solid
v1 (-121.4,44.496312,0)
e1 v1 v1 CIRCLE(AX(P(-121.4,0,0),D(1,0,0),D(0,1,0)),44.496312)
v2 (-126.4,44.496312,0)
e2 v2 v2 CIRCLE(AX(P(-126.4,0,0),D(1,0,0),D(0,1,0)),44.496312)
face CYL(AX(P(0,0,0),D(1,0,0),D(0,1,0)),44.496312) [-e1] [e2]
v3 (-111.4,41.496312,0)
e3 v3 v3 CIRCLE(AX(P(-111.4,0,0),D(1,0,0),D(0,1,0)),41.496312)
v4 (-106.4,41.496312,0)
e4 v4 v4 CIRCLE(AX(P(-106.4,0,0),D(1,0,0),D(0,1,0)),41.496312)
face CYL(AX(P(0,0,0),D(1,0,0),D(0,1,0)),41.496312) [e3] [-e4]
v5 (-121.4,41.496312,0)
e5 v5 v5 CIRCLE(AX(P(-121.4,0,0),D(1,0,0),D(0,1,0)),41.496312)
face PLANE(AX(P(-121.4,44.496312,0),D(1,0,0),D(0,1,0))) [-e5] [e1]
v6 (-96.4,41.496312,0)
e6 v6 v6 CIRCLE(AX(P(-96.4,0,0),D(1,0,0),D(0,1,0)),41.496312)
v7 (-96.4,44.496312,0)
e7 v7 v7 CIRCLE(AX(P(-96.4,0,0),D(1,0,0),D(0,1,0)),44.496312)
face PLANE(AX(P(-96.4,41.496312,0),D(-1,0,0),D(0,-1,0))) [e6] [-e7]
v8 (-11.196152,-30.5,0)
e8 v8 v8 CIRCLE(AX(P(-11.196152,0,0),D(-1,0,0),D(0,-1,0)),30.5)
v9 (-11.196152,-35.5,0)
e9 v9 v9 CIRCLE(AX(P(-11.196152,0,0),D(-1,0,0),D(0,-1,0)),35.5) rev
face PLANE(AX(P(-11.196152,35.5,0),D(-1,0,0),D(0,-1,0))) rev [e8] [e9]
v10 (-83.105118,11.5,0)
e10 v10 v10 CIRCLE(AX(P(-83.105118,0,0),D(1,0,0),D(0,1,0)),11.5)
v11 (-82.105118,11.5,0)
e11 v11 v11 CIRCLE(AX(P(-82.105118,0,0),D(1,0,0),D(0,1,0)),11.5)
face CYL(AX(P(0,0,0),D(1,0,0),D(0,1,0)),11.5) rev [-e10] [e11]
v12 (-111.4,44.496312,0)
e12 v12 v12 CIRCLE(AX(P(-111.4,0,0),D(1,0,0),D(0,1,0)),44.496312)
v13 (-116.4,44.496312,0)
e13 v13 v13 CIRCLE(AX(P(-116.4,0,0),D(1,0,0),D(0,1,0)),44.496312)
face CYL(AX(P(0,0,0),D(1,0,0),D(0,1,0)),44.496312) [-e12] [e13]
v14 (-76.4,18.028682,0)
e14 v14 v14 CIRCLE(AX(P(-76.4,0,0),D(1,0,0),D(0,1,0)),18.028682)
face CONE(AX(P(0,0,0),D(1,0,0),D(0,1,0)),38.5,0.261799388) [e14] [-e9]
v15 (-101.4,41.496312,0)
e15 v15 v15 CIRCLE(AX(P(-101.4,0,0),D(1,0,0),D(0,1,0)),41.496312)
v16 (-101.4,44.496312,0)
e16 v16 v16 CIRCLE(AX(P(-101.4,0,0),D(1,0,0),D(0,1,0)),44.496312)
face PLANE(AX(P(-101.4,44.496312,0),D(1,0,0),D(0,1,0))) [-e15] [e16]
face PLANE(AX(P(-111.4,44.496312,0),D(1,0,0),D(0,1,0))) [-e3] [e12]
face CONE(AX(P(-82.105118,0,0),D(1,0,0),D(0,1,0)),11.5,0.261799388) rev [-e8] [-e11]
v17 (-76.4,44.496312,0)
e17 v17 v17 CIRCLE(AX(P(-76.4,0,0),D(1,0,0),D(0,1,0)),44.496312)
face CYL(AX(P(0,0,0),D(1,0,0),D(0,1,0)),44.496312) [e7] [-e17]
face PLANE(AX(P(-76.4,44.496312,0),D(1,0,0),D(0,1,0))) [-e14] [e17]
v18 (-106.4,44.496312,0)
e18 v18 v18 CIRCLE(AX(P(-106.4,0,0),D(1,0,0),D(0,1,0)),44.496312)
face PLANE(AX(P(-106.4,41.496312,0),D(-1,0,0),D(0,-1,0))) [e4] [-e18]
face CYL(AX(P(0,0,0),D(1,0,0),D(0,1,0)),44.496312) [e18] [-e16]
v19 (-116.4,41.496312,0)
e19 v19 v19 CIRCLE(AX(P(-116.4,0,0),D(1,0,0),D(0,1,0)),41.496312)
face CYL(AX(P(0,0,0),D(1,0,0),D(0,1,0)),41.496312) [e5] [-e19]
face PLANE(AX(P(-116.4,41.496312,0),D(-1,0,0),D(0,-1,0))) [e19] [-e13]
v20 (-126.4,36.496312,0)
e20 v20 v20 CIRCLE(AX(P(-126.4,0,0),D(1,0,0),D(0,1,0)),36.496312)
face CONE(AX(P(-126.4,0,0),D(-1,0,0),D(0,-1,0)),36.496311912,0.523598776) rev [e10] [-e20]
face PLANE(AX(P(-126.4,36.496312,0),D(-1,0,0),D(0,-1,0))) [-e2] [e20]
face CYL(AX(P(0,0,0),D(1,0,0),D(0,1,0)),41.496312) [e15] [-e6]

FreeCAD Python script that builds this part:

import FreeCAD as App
import Part
import Sketcher
from FreeCAD import Vector
Q = App.Units.Quantity

doc = App.newDocument("Part")
body = doc.addObject("PartDesign::Body", "Body")

# Sketch on XY plane
sketch1 = doc.addObject("Sketcher::SketchObject", "Sketch")
body.addObject(sketch1)
sketch1.AttachmentSupport = (doc.XY_Plane, [""])
sketch1.MapMode = "FlatFace"
sketch1.addGeometry(Part.LineSegment(Vector(-82.1, 11.5, 0), Vector(0, 33.5, 0)), False)
sketch1.addGeometry(Part.LineSegment(Vector(0, 33.5, 0), Vector(0, 38.5, 0)), False)
sketch1.addGeometry(Part.LineSegment(Vector(0, 38.5, 0), Vector(-76.4, 18, 0)), False)
sketch1.addGeometry(Part.LineSegment(Vector(-76.4, 18, 0), Vector(-76.4, 44.5, 0)), False)
sketch1.addGeometry(Part.LineSegment(Vector(-76.4, 44.5, 0), Vector(-96.4, 44.5, 0)), False)
sketch1.addGeometry(Part.LineSegment(Vector(-96.4, 44.5, 0), Vector(-96.4, 41.5, 0)), False)
sketch1.addGeometry(Part.LineSegment(Vector(-96.4, 41.5, 0), Vector(-101.4, 41.5, 0)), False)
sketch1.addGeometry(Part.LineSegment(Vector(-101.4, 41.5, 0), Vector(-101.4, 44.5, 0)), False)
sketch1.addGeometry(Part.LineSegment(Vector(-101.4, 44.5, 0), Vector(-106.4, 44.5, 0)), False)
sketch1.addGeometry(Part.LineSegment(Vector(-106.4, 44.5, 0), Vector(-106.4, 41.5, 0)), False)
sketch1.addGeometry(Part.LineSegment(Vector(-106.4, 41.5, 0), Vector(-111.4, 41.5, 0)), False)
sketch1.addGeometry(Part.LineSegment(Vector(-111.4, 41.5, 0), Vector(-111.4, 44.5, 0)), False)
sketch1.addGeometry(Part.LineSegment(Vector(-111.4, 44.5, 0), Vector(-116.4, 44.5, 0)), False)
sketch1.addGeometry(Part.LineSegment(Vector(-116.4, 44.5, 0), Vector(-116.4, 41.5, 0)), False)
sketch1.addGeometry(Part.LineSegment(Vector(-116.4, 41.5, 0), Vector(-121.4, 41.5, 0)), False)
sketch1.addGeometry(Part.LineSegment(Vector(-121.4, 41.5, 0), Vector(-121.4, 44.5, 0)), False)
sketch1.addGeometry(Part.LineSegment(Vector(-121.4, 44.5, 0), Vector(-126.4, 44.5, 0)), False)
sketch1.addGeometry(Part.LineSegment(Vector(-126.4, 44.5, 0), Vector(-126.4, 36.5, 0)), False)
sketch1.addGeometry(Part.LineSegment(Vector(-126.4, 36.5, 0), Vector(-83.1, 11.5, 0)), False)
sketch1.addGeometry(Part.LineSegment(Vector(-83.1, 11.5, 0), Vector(-82.1, 11.5, 0)), False)
sketch1.addConstraint(Sketcher.Constraint("Coincident", 0, 2, 1, 1))
sketch1.addConstraint(Sketcher.Constraint("Coincident", 1, 2, 2, 1))
sketch1.addConstraint(Sketcher.Constraint("Coincident", 2, 2, 3, 1))
sketch1.addConstraint(Sketcher.Constraint("Coincident", 3, 2, 4, 1))
sketch1.addConstraint(Sketcher.Constraint("Coincident", 4, 2, 5, 1))
sketch1.addConstraint(Sketcher.Constraint("Coincident", 5, 2, 6, 1))
sketch1.addConstraint(Sketcher.Constraint("Coincident", 6, 2, 7, 1))
sketch1.addConstraint(Sketcher.Constraint("Coincident", 7, 2, 8, 1))
sketch1.addConstraint(Sketcher.Constraint("Coincident", 8, 2, 9, 1))
sketch1.addConstraint(Sketcher.Constraint("Coincident", 9, 2, 10, 1))
sketch1.addConstraint(Sketcher.Constraint("Coincident", 10, 2, 11, 1))
sketch1.addConstraint(Sketcher.Constraint("Coincident", 11, 2, 12, 1))
sketch1.addConstraint(Sketcher.Constraint("Coincident", 12, 2, 13, 1))
sketch1.addConstraint(Sketcher.Constraint("Coincident", 13, 2, 14, 1))
sketch1.addConstraint(Sketcher.Constraint("Coincident", 14, 2, 15, 1))
sketch1.addConstraint(Sketcher.Constraint("Coincident", 15, 2, 16, 1))
sketch1.addConstraint(Sketcher.Constraint("Coincident", 16, 2, 17, 1))
sketch1.addConstraint(Sketcher.Constraint("Coincident", 17, 2, 18, 1))
sketch1.addConstraint(Sketcher.Constraint("Coincident", 18, 2, 19, 1))
sketch1.addConstraint(Sketcher.Constraint("Coincident", 19, 2, 0, 1))
sketch1.addConstraint(Sketcher.Constraint("Vertical", 1))
sketch1.addConstraint(Sketcher.Constraint("Vertical", 3))
sketch1.addConstraint(Sketcher.Constraint("Horizontal", 4))
sketch1.addConstraint(Sketcher.Constraint("Vertical", 5))
sketch1.addConstraint(Sketcher.Constraint("Horizontal", 6))
sketch1.addConstraint(Sketcher.Constraint("Vertical", 7))
sketch1.addConstraint(Sketcher.Constraint("Horizontal", 8))
sketch1.addConstraint(Sketcher.Constraint("Vertical", 9))
sketch1.addConstraint(Sketcher.Constraint("Horizontal", 10))
sketch1.addConstraint(Sketcher.Constraint("Vertical", 11))
sketch1.addConstraint(Sketcher.Constraint("Horizontal", 12))
sketch1.addConstraint(Sketcher.Constraint("Vertical", 13))
sketch1.addConstraint(Sketcher.Constraint("Horizontal", 14))
sketch1.addConstraint(Sketcher.Constraint("Vertical", 15))
sketch1.addConstraint(Sketcher.Constraint("Horizontal", 16))
sketch1.addConstraint(Sketcher.Constraint("Vertical", 17))
sketch1.addConstraint(Sketcher.Constraint("Horizontal", 19))
sketch1.addConstraint(Sketcher.Constraint("PointOnObject", 0, 2, -2))
sketch1.addConstraint(Sketcher.Constraint("Parallel", 0, 2))
sketch1.addConstraint(Sketcher.Constraint("Horizontal", 4, 2, 7, 2))
sketch1.addConstraint(Sketcher.Constraint("Horizontal", 6, 2, 9, 2))
sketch1.addConstraint(Sketcher.Constraint("Horizontal", 8, 2, 11, 2))
sketch1.addConstraint(Sketcher.Constraint("Horizontal", 10, 2, 13, 2))
sketch1.addConstraint(Sketcher.Constraint("Horizontal", 12, 2, 15, 2))
sketch1.addConstraint(Sketcher.Constraint("Equal", 6, 8))
sketch1.addConstraint(Sketcher.Constraint("Equal", 8, 10))
sketch1.addConstraint(Sketcher.Constraint("Equal", 10, 12))
sketch1.addConstraint(Sketcher.Constraint("Equal", 12, 14))
sketch1.addConstraint(Sketcher.Constraint("Equal", 14, 16))
sketch1.addConstraint(Sketcher.Constraint("Equal", 16, 1))
sketch1.addConstraint(Sketcher.Constraint("DistanceX", 4, 2, 4, 1, 20.0))
sketch1.addConstraint(Sketcher.Constraint("DistanceX", 6, 2, 6, 1, 5.0))
sketch1.addConstraint(Sketcher.Constraint("DistanceX", 19, 1, 19, 2, 1.0))
sketch1.addConstraint(Sketcher.Constraint("DistanceY", 5, 2, 5, 1, 3.0))
sketch1.addConstraint(Sketcher.Constraint("DistanceY", 17, 2, 17, 1, 8.0))
sketch1.addConstraint(Sketcher.Constraint("Angle", 0, Q("15 deg")))
sketch1.addConstraint(Sketcher.Constraint("Angle", 18, Q("-30 deg")))
sketch1.addConstraint(Sketcher.Constraint("DistanceY", -1, 1, 0, 2, 33.5))
sketch1.addConstraint(Sketcher.Constraint("DistanceX", 2, 2, -1, 1, 76.4))
sketch1.addConstraint(Sketcher.Constraint("DistanceY", -1, 1, 18, 2, 11.5))
revolution = doc.addObject("PartDesign::Revolution", "Revolution")
body.addObject(revolution)
revolution.Profile = sketch1
revolution.ReferenceAxis = (sketch1, ["H_Axis"])
revolution.Angle = 360

# Sketch on XY plane
sketch2 = doc.addObject("Sketcher::SketchObject", "Sketch001")
body.addObject(sketch2)
sketch2.AttachmentSupport = (doc.XY_Plane, [""])
sketch2.MapMode = "FlatFace"
sketch2.addGeometry(Part.LineSegment(Vector(-11, 56, 0), Vector(-11, 0, 0)), False)
sketch2.addGeometry(Part.LineSegment(Vector(-11, 0, 0), Vector(15, 0, 0)), False)
sketch2.addGeometry(Part.LineSegment(Vector(15, 0, 0), Vector(15, 56, 0)), False)
sketch2.addGeometry(Part.LineSegment(Vector(15, 56, 0), Vector(-11, 56, 0)), False)
sketch2.addConstraint(Sketcher.Constraint("Coincident", 0, 2, 1, 1))
sketch2.addConstraint(Sketcher.Constraint("Coincident", 1, 2, 2, 1))
sketch2.addConstraint(Sketcher.Constraint("Coincident", 2, 2, 3, 1))
sketch2.addConstraint(Sketcher.Constraint("Coincident", 3, 2, 0, 1))
sketch2.addConstraint(Sketcher.Constraint("Vertical", 0))
sketch2.addConstraint(Sketcher.Constraint("Horizontal", 1))
sketch2.addConstraint(Sketcher.Constraint("Vertical", 2))
sketch2.addConstraint(Sketcher.Constraint("Horizontal", 3))
sketch2.addConstraint(Sketcher.Constraint("PointOnObject", 0, 2, -1))
sketch2.addConstraint(Sketcher.Constraint("DistanceX", 1, 1, 1, 2, 25.727488))
sketch2.addConstraint(Sketcher.Constraint("DistanceY", 0, 2, 0, 1, 56.271944))
sketch2.addConstraint(Sketcher.Constraint("DistanceX", 0, 2, -1, 1, 11.196152))
groove = doc.addObject("PartDesign::Groove", "Groove")
body.addObject(groove)
groove.Profile = sketch2
groove.ReferenceAxis = (sketch2, ["H_Axis"])
groove.Angle = 360

doc.recompute()
